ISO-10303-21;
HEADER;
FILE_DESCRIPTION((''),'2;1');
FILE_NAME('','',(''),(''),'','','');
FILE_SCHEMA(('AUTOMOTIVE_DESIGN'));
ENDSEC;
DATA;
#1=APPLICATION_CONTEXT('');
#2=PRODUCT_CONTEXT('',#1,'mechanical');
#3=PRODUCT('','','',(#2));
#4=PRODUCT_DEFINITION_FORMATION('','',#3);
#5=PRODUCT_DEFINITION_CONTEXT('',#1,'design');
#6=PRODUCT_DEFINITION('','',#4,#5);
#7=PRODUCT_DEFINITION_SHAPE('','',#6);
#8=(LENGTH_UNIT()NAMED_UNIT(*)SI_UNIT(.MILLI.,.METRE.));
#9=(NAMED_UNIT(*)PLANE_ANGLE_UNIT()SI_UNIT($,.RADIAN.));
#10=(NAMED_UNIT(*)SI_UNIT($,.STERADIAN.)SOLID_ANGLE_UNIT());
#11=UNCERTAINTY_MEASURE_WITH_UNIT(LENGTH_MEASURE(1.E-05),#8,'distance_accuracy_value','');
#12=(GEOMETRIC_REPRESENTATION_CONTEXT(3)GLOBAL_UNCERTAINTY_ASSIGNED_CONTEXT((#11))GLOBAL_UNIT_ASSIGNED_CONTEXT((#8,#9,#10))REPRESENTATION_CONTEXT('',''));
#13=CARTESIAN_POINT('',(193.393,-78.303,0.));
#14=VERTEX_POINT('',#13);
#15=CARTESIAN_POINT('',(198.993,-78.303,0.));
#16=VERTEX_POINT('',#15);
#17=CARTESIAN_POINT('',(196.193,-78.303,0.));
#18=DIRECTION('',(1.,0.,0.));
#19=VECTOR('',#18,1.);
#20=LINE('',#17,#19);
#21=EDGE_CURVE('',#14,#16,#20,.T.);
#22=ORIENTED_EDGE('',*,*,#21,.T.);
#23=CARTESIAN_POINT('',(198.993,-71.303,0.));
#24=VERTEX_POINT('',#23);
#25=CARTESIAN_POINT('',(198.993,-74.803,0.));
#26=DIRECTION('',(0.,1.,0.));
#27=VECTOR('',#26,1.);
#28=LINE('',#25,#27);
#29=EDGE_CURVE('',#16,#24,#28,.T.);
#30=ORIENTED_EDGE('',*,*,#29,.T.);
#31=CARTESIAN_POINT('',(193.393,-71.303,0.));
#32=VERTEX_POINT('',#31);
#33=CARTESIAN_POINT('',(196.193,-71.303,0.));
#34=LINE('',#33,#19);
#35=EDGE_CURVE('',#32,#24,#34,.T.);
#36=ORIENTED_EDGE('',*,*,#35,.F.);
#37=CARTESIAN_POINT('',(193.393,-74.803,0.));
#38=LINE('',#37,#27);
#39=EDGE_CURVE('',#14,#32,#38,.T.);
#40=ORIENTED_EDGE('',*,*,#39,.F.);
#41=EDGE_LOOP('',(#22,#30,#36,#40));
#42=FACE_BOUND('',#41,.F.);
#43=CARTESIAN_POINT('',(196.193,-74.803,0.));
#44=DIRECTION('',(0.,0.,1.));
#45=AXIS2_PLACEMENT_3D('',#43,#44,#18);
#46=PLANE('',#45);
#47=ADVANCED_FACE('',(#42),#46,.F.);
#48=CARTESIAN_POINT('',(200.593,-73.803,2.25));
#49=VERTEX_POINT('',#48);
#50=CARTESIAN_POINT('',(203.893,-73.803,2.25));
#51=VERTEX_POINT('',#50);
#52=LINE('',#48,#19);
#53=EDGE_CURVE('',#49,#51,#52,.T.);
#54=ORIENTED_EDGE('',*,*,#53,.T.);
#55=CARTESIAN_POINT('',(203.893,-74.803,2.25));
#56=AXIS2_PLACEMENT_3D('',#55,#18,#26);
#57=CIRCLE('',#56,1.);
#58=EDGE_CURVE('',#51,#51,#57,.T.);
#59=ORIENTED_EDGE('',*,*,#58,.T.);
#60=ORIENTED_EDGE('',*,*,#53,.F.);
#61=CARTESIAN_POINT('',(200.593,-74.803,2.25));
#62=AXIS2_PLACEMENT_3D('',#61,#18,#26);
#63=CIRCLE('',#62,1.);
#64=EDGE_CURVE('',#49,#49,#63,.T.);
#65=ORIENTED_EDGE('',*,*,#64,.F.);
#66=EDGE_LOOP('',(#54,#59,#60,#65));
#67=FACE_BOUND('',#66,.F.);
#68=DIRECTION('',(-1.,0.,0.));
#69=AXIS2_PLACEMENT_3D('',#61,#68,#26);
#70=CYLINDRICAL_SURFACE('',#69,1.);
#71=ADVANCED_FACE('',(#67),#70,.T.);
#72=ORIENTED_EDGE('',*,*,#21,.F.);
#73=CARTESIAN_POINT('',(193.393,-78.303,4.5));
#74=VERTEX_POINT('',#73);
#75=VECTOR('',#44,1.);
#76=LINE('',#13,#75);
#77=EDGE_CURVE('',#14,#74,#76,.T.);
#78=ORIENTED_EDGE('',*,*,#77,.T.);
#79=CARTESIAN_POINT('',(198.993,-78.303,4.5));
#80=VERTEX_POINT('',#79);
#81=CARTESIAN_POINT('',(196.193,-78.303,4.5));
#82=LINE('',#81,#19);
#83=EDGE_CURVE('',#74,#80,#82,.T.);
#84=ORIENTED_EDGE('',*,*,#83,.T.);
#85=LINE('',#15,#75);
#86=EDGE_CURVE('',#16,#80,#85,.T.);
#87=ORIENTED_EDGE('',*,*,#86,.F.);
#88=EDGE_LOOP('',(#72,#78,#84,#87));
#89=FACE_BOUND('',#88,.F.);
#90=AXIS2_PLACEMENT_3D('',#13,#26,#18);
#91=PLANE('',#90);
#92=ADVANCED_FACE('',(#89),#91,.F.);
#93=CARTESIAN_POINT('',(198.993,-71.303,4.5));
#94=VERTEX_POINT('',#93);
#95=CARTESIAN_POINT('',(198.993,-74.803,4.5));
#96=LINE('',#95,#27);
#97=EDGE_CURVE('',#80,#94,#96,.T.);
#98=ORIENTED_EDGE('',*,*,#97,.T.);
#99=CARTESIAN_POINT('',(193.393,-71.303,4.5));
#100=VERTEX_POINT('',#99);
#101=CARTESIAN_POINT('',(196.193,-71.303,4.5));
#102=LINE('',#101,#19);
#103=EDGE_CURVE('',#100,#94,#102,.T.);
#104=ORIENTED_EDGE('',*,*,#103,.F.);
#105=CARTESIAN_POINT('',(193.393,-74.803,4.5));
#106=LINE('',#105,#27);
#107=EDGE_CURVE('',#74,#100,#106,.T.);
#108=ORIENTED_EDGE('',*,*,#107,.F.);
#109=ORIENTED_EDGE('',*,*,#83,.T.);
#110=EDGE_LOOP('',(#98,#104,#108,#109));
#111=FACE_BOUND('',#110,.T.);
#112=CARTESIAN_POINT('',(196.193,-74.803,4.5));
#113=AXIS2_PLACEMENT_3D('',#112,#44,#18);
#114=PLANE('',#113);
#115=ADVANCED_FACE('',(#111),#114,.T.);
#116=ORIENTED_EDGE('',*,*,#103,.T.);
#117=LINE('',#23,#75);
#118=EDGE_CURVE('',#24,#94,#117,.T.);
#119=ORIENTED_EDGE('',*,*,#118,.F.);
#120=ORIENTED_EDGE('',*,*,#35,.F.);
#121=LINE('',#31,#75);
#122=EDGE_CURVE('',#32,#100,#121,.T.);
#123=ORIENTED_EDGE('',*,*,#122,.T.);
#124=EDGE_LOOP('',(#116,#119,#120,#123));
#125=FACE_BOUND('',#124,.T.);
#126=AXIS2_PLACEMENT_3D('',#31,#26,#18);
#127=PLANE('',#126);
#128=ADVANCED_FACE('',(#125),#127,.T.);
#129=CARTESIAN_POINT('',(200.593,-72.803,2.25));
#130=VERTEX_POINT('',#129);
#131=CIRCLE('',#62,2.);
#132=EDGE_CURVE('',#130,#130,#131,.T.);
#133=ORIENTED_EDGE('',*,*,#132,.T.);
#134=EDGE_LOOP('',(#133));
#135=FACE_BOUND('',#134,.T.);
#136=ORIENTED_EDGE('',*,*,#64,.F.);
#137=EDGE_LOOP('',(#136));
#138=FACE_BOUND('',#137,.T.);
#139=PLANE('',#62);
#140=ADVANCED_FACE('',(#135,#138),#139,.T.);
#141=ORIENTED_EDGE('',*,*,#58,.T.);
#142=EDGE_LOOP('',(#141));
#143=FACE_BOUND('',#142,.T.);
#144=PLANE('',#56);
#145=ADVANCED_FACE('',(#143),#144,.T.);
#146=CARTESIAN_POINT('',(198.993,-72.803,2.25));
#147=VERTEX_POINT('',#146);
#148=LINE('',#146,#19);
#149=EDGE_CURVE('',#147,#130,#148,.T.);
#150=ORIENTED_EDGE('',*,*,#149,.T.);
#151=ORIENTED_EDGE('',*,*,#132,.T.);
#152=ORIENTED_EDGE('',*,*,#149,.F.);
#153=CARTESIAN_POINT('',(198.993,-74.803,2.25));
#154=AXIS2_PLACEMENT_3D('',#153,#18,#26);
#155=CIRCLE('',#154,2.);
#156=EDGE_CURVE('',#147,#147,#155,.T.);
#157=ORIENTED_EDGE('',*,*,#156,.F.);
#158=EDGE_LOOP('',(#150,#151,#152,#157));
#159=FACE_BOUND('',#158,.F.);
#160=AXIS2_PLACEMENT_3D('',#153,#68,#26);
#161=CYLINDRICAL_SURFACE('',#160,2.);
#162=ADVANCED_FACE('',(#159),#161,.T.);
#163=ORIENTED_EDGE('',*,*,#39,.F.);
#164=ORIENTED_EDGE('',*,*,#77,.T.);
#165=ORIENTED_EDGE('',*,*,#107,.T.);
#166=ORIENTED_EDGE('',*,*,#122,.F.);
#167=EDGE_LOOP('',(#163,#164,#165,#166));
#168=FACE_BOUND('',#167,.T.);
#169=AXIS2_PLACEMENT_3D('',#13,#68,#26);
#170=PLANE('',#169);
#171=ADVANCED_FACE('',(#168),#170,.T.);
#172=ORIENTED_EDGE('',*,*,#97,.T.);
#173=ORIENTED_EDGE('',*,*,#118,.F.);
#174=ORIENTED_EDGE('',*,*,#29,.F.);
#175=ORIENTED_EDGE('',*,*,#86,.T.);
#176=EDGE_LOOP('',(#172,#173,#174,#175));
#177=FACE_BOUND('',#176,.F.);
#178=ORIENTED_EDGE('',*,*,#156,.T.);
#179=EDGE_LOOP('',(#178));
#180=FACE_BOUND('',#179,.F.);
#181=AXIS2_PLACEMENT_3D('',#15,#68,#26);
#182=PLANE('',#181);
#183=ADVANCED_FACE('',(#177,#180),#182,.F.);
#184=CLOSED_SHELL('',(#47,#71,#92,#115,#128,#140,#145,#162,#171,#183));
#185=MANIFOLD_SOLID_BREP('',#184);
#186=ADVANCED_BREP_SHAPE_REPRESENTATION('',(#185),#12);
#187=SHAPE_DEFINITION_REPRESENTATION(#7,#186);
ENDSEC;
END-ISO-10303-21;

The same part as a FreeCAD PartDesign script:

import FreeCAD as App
import Part
import Sketcher

V = App.Vector

doc = App.newDocument("Part")
params = doc.addObject("Spreadsheet::Sheet", "Params")
for row, (alias, value) in enumerate([
    ("sketch1_height", "7 mm"),
    ("sketch1_width", "5.6 mm"),
    ("pad1_length", "4.5 mm"),
    ("sketch2_diameter", "4 mm"),
    ("pad2_length", "1.6 mm"),
    ("sketch3_diameter", "2 mm"),
    ("pad3_length", "3.3 mm"),
], start=1):
    params.set(f"A{row}", alias)
    params.set(f"B{row}", "=" + value)
    params.setAlias(f"B{row}", alias)

body = doc.addObject("PartDesign::Body", "Body")

# Sketch on XY plane
sketch1 = doc.addObject("Sketcher::SketchObject", "Sketch")
body.addObject(sketch1)
sketch1.AttachmentSupport = (doc.XY_Plane, [""])
sketch1.MapMode = "FlatFace"
sketch1.addGeometry([
    Part.LineSegment(V(193, -71, 0), V(193, -78, 0)),
    Part.LineSegment(V(193, -78, 0), V(199, -78, 0)),
    Part.LineSegment(V(199, -78, 0), V(199, -71, 0)),
    Part.LineSegment(V(199, -71, 0), V(193, -71, 0)),
], False)
sketch1.addConstraint([
    Sketcher.Constraint("Coincident", 0, 2, 1, 1),
    Sketcher.Constraint("Coincident", 1, 2, 2, 1),
    Sketcher.Constraint("Coincident", 2, 2, 3, 1),
    Sketcher.Constraint("Coincident", 3, 2, 0, 1),
    Sketcher.Constraint("Vertical", 0),
    Sketcher.Constraint("Horizontal", 1),
    Sketcher.Constraint("Vertical", 2),
    Sketcher.Constraint("Horizontal", 3),
    Sketcher.Constraint("DistanceY", 0, 2, 0, 1, 7.0),
    Sketcher.Constraint("DistanceX", 1, 1, 1, 2, 5.6),
    Sketcher.Constraint("DistanceX", -1, 1, 0, 2, 193.393),
    Sketcher.Constraint("DistanceY", 0, 2, -1, 1, 78.303),
])
sketch1.setExpression("Constraints[8]", "Params.sketch1_height")
sketch1.setExpression("Constraints[9]", "Params.sketch1_width")
pad1 = doc.addObject("PartDesign::Pad", "Pad")
body.addObject(pad1)
pad1.Profile = sketch1
pad1.setExpression("Length", "Params.pad1_length")

# Sketch on YZ plane
sketch2 = doc.addObject("Sketcher::SketchObject", "Sketch001")
body.addObject(sketch2)
sketch2.AttachmentSupport = (doc.YZ_Plane, [""])
sketch2.MapMode = "FlatFace"
sketch2.AttachmentOffset = App.Placement(V(0, 0, 198.993), App.Rotation())
sketch2.addGeometry(Part.Circle(V(-74.8, 2.2, 0), V(0, 0, 1), 2), False)
sketch2.addConstraint([
    Sketcher.Constraint("Diameter", 0, 4.0),
    Sketcher.Constraint("DistanceY", -1, 1, 0, 3, 2.25),
    Sketcher.Constraint("DistanceX", 0, 3, -1, 1, 74.803),
])
sketch2.setExpression("Constraints[0]", "Params.sketch2_diameter")
pad2 = doc.addObject("PartDesign::Pad", "Pad001")
body.addObject(pad2)
pad2.Profile = sketch2
pad2.setExpression("Length", "Params.pad2_length")

# Sketch on YZ plane
sketch3 = doc.addObject("Sketcher::SketchObject", "Sketch002")
body.addObject(sketch3)
sketch3.AttachmentSupport = (doc.YZ_Plane, [""])
sketch3.MapMode = "FlatFace"
sketch3.AttachmentOffset = App.Placement(V(0, 0, 200.593), App.Rotation())
sketch3.addGeometry(Part.Circle(V(-74.8, 2.2, 0), V(0, 0, 1), 1), False)
sketch3.addConstraint([
    Sketcher.Constraint("Diameter", 0, 2.0),
    Sketcher.Constraint("DistanceY", -1, 1, 0, 3, 2.25),
    Sketcher.Constraint("DistanceX", 0, 3, -1, 1, 74.803),
])
sketch3.setExpression("Constraints[0]", "Params.sketch3_diameter")
pad3 = doc.addObject("PartDesign::Pad", "Pad002")
body.addObject(pad3)
pad3.Profile = sketch3
pad3.setExpression("Length", "Params.pad3_length")

doc.recompute()
